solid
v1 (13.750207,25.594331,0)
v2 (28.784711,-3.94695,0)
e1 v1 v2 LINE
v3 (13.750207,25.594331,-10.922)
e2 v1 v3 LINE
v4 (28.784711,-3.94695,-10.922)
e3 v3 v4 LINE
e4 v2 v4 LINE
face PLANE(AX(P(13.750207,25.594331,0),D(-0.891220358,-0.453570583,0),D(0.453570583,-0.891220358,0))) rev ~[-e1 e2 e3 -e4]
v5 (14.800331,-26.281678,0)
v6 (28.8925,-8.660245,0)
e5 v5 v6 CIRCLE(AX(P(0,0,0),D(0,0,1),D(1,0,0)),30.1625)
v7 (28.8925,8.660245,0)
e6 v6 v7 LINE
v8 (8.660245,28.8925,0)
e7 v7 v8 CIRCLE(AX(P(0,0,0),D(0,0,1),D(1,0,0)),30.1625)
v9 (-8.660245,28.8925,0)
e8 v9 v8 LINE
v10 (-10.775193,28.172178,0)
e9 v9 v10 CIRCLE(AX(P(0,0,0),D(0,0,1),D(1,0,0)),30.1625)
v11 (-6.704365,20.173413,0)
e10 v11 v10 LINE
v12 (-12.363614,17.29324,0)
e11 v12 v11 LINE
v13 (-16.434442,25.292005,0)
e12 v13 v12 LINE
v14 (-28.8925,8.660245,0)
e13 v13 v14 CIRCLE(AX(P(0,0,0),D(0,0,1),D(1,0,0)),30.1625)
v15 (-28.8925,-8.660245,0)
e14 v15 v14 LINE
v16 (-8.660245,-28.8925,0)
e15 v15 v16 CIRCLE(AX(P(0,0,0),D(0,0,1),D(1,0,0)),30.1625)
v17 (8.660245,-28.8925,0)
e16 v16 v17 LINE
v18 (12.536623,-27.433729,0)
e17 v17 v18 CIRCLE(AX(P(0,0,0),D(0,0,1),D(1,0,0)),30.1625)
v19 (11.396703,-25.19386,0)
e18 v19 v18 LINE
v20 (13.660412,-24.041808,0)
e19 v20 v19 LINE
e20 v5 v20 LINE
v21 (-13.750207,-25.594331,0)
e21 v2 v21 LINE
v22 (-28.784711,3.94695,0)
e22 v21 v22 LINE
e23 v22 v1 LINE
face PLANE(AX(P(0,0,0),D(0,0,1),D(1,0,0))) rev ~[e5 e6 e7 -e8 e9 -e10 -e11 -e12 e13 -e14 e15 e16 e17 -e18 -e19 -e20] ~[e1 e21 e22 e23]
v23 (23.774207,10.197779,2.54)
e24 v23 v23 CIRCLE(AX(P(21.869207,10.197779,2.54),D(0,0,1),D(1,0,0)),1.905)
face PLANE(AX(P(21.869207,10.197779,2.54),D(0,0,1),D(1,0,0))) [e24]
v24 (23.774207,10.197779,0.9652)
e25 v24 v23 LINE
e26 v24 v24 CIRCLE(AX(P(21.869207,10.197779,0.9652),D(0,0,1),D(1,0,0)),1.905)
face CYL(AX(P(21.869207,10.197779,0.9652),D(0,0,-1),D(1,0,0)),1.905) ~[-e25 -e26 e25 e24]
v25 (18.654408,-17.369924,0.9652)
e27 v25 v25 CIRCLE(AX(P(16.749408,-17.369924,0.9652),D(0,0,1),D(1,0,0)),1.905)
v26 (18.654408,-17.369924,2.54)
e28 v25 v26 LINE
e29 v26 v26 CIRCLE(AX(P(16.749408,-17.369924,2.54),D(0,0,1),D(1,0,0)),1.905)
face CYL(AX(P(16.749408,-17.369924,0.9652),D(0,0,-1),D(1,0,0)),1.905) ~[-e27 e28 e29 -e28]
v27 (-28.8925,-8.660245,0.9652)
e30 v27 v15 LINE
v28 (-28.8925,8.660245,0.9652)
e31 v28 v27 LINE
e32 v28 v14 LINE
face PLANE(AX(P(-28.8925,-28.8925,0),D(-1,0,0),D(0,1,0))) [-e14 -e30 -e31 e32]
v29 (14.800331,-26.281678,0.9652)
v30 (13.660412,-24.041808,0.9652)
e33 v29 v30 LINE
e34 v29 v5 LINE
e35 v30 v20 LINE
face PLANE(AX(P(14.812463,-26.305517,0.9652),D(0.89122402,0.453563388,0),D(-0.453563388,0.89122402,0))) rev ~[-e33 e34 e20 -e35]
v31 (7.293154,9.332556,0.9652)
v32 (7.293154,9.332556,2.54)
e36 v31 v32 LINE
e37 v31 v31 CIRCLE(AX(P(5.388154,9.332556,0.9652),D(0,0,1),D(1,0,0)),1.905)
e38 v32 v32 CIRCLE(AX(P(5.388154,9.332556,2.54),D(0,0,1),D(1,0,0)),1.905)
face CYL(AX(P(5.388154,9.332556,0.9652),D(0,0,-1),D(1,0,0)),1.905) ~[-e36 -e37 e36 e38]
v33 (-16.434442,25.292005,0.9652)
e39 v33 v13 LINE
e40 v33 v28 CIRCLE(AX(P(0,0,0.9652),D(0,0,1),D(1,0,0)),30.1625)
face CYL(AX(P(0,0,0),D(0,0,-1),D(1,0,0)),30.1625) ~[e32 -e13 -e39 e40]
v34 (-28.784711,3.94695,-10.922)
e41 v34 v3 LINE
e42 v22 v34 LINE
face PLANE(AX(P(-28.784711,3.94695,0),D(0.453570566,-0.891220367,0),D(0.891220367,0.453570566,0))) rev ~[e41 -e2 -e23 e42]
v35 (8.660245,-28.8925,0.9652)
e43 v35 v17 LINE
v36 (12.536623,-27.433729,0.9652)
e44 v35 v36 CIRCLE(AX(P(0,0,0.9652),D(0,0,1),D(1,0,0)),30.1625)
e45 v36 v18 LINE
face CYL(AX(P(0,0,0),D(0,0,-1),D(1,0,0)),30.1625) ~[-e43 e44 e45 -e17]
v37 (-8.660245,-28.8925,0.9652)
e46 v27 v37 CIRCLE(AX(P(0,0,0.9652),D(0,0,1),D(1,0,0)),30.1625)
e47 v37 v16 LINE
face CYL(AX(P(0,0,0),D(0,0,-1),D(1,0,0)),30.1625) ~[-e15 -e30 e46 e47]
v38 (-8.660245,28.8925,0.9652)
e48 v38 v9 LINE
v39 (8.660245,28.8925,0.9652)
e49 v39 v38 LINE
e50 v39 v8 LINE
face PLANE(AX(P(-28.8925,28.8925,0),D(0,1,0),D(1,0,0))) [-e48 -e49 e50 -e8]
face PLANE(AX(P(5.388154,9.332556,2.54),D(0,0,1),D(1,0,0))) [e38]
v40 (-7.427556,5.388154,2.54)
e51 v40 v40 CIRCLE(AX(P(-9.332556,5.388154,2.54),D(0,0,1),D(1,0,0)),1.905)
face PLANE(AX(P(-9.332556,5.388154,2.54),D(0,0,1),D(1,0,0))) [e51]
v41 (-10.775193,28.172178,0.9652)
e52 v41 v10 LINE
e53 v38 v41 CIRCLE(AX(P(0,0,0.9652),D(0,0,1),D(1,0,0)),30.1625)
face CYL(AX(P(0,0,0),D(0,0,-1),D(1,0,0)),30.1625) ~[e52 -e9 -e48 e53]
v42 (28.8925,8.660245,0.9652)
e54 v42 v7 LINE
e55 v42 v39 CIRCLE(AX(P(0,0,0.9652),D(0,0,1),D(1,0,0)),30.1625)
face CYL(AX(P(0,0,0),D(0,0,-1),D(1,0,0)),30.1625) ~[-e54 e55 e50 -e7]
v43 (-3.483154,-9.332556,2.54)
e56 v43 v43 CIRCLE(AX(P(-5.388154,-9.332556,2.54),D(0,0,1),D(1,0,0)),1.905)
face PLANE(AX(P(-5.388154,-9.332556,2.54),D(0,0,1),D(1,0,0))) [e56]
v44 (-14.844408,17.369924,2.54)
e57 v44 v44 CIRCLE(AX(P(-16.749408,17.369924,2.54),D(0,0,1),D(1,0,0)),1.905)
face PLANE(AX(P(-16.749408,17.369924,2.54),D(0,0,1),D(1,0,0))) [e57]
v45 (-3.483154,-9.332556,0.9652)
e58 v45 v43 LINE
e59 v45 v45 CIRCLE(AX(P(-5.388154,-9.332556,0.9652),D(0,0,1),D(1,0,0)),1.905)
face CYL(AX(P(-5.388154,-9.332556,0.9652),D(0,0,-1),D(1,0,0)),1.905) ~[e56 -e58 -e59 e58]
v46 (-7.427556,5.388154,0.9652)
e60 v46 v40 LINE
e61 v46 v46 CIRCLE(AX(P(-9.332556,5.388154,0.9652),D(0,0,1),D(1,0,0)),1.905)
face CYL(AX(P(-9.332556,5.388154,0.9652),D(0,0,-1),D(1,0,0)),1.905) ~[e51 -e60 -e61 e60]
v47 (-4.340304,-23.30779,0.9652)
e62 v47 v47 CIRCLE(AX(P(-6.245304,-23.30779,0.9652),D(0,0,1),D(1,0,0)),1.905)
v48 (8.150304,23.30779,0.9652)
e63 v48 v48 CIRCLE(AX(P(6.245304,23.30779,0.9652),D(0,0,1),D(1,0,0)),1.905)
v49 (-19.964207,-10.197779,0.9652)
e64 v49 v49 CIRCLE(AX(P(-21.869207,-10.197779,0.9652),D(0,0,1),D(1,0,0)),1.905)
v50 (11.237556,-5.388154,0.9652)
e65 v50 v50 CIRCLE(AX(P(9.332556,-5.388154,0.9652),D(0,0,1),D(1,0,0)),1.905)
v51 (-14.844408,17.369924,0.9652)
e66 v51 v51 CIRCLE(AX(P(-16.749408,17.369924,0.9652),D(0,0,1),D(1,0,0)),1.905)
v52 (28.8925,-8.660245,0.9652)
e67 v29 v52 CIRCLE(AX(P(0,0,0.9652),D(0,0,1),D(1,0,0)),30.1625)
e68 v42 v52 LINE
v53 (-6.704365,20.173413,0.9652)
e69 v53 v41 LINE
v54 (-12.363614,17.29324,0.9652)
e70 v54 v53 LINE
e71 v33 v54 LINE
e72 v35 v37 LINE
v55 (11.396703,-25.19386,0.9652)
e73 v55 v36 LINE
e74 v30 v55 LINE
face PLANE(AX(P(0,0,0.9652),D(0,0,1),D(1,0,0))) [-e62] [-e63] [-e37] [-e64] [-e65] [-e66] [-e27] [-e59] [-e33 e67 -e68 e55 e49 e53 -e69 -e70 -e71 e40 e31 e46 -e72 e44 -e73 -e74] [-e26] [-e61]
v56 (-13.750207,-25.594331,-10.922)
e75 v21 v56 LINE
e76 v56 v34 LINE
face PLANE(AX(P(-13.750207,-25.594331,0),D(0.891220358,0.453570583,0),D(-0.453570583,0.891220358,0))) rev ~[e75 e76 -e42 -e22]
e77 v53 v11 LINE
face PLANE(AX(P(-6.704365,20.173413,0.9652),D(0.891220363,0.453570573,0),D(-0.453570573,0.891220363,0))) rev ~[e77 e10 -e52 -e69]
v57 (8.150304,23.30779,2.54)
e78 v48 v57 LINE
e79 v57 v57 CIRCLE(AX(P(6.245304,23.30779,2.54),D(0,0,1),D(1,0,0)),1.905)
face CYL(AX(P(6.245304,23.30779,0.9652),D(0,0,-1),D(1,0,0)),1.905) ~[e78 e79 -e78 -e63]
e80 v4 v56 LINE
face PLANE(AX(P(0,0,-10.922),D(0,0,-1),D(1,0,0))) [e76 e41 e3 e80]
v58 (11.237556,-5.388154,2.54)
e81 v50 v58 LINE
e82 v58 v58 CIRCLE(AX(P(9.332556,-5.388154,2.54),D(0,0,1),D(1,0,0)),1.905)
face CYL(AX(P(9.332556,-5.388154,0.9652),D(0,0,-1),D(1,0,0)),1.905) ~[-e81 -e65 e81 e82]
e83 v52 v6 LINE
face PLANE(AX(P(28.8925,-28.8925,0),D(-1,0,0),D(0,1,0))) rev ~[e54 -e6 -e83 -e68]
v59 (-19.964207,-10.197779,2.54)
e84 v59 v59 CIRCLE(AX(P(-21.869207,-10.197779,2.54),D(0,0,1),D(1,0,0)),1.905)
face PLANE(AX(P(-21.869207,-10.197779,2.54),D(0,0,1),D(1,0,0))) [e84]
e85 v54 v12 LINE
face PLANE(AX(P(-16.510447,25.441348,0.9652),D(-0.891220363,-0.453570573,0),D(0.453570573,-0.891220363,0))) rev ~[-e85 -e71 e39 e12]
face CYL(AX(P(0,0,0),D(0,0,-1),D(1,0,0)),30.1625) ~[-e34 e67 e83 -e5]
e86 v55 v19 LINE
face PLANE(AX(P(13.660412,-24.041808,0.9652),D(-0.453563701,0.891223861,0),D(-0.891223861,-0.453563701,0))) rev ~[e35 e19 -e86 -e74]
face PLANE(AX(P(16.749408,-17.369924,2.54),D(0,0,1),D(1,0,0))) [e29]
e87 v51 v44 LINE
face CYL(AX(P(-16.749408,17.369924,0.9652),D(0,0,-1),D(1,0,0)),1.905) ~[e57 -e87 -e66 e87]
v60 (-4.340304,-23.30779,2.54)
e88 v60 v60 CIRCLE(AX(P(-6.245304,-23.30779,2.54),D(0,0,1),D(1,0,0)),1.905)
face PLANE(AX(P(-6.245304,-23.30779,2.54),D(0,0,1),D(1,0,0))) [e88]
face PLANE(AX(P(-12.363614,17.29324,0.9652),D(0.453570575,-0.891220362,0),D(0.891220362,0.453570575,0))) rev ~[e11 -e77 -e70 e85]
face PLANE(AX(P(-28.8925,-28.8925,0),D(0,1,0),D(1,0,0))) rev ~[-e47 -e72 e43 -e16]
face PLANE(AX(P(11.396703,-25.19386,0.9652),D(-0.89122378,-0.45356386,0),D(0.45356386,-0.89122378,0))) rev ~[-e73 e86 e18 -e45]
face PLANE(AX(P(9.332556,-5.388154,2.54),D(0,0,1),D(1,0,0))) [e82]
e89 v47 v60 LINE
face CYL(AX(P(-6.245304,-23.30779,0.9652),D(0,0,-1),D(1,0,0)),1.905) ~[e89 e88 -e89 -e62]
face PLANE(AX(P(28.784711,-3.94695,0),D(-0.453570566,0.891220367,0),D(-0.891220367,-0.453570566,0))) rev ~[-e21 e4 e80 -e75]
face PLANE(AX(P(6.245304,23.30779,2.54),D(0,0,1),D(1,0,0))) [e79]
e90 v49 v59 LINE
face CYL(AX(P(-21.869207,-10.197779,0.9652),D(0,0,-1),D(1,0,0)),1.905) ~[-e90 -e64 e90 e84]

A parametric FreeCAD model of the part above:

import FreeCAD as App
import Part
import Sketcher

V = App.Vector
Q = App.Units.Quantity

doc = App.newDocument("Part")
body = doc.addObject("PartDesign::Body", "Body")

# Sketch on XY plane
sketch1 = body.newObject("Sketcher::SketchObject", "Sketch")
sketch1.AttachmentSupport = (doc.getObject("XY_Plane"), [""])
sketch1.MapMode = "FlatFace"
sketch1.addGeometry(Part.Circle(V(0, 0, 0), V(0, 0, 1), 30), False)
sketch1.addConstraint(Sketcher.Constraint("Coincident", 0, 3, -1, 1))
sketch1.addConstraint(Sketcher.Constraint("Diameter", 0, Q("2.375 in")))
pad1 = body.newObject("PartDesign::Pad", "Pad")
pad1.Profile = sketch1
pad1.Length = Q("0.038 in")

# Sketch on XY plane
sketch2 = body.newObject("Sketcher::SketchObject", "Sketch001")
sketch2.AttachmentSupport = (doc.getObject("XY_Plane"), [""])
sketch2.MapMode = "FlatFace"
sketch2.addGeometry(Part.LineSegment(V(-38, 38, 0), V(-38, -38, 0)), False)
sketch2.addGeometry(Part.LineSegment(V(-38, -38, 0), V(38, -38, 0)), False)
sketch2.addGeometry(Part.LineSegment(V(38, -38, 0), V(38, 38, 0)), False)
sketch2.addGeometry(Part.LineSegment(V(38, 38, 0), V(-38, 38, 0)), False)
sketch2.addGeometry(Part.LineSegment(V(29, -29, 0), V(-29, -29, 0)), False)
sketch2.addGeometry(Part.LineSegment(V(-29, -29, 0), V(-29, 29, 0)), False)
sketch2.addGeometry(Part.LineSegment(V(-29, 29, 0), V(29, 29, 0)), False)
sketch2.addGeometry(Part.LineSegment(V(29, 29, 0), V(29, -29, 0)), False)
sketch2.addConstraint(Sketcher.Constraint("Coincident", 0, 2, 1, 1))
sketch2.addConstraint(Sketcher.Constraint("Coincident", 1, 2, 2, 1))
sketch2.addConstraint(Sketcher.Constraint("Coincident", 2, 2, 3, 1))
sketch2.addConstraint(Sketcher.Constraint("Coincident", 3, 2, 0, 1))
sketch2.addConstraint(Sketcher.Constraint("Coincident", 4, 2, 5, 1))
sketch2.addConstraint(Sketcher.Constraint("Coincident", 5, 2, 6, 1))
sketch2.addConstraint(Sketcher.Constraint("Coincident", 6, 2, 7, 1))
sketch2.addConstraint(Sketcher.Constraint("Coincident", 7, 2, 4, 1))
sketch2.addConstraint(Sketcher.Constraint("Vertical", 0))
sketch2.addConstraint(Sketcher.Constraint("Horizontal", 1))
sketch2.addConstraint(Sketcher.Constraint("Vertical", 2))
sketch2.addConstraint(Sketcher.Constraint("Horizontal", 3))
sketch2.addConstraint(Sketcher.Constraint("Horizontal", 4))
sketch2.addConstraint(Sketcher.Constraint("Vertical", 5))
sketch2.addConstraint(Sketcher.Constraint("Horizontal", 6))
sketch2.addConstraint(Sketcher.Constraint("Vertical", 7))
sketch2.addConstraint(Sketcher.Constraint("Symmetric", 0, 2, 2, 2, -1, 1))
sketch2.addConstraint(Sketcher.Constraint("Symmetric", 4, 2, 6, 2, -1, 1))
sketch2.addConstraint(Sketcher.Constraint("Equal", 3, 0))
sketch2.addConstraint(Sketcher.Constraint("Equal", 6, 5))
sketch2.addConstraint(Sketcher.Constraint("DistanceX", 1, 1, 1, 2, Q("3 in")))
sketch2.addConstraint(Sketcher.Constraint("DistanceX", 4, 2, 4, 1, Q("2.275 in")))
pocket1 = body.newObject("PartDesign::Pocket", "Pocket")
pocket1.Profile = sketch2
pocket1.Type = "ThroughAll"
pocket1.Reversed = True

# Sketch on XY plane
sketch3 = body.newObject("Sketcher::SketchObject", "Sketch002")
sketch3.AttachmentSupport = (doc.getObject("XY_Plane"), [""])
sketch3.MapMode = "FlatFace"
sketch3.AttachmentOffset = App.Placement(V(0, 0, 0.038 * 25.4), App.Rotation())
sketch3.addGeometry(Part.Circle(V(-9.3, 5.4, 0), V(0, 0, 1), 1.9), False)
sketch3.addGeometry(Part.Circle(V(5.4, 9.3, 0), V(0, 0, 1), 1.9), False)
sketch3.addGeometry(Part.Circle(V(9.3, -5.4, 0), V(0, 0, 1), 1.9), False)
sketch3.addGeometry(Part.Circle(V(-5.4, -9.3, 0), V(0, 0, 1), 1.9), False)
sketch3.addConstraint(Sketcher.Constraint("Equal", 0, 1))
sketch3.addConstraint(Sketcher.Constraint("Equal", 1, 2))
sketch3.addConstraint(Sketcher.Constraint("Equal", 2, 3))
sketch3.addConstraint(Sketcher.Constraint("Symmetric", 0, 3, 2, 3, -1, 1))
sketch3.addConstraint(Sketcher.Constraint("Symmetric", 1, 3, 3, 3, -1, 1))
sketch3.addConstraint(Sketcher.Constraint("Diameter", 0, Q("0.15 in")))
sketch3.addConstraint(Sketcher.Constraint("DistanceX", 0, 3, 1, 3, 14.72071))
sketch3.addConstraint(Sketcher.Constraint("DistanceY", 2, 3, 1, 3, 14.72071))
sketch3.addConstraint(Sketcher.Constraint("DistanceX", 0, 3, -1, 1, 9.332556))
sketch3.addConstraint(Sketcher.Constraint("DistanceY", -1, 1, 0, 3, 5.388154))
pad2 = body.newObject("PartDesign::Pad", "Pad001")
pad2.Profile = sketch3
pad2.Length = Q("0.062 in")

# Sketch on XY plane
sketch4 = body.newObject("Sketcher::SketchObject", "Sketch003")
sketch4.AttachmentSupport = (doc.getObject("XY_Plane"), [""])
sketch4.MapMode = "FlatFace"
sketch4.AttachmentOffset = App.Placement(V(0, 0, 0.038 * 25.4), App.Rotation())
sketch4.addGeometry(Part.Circle(V(6.2, 23.3, 0), V(0, 0, 1), 1.9), False)
sketch4.addGeometry(Part.Circle(V(-16.7, 17.4, 0), V(0, 0, 1), 1.9), False)
sketch4.addGeometry(Part.Circle(V(-6.2, -23.3, 0), V(0, 0, 1), 1.9), False)
sketch4.addGeometry(Part.Circle(V(16.7, -17.4, 0), V(0, 0, 1), 1.9), False)
sketch4.addGeometry(Part.Circle(V(21.9, 10.2, 0), V(0, 0, 1), 1.9), False)
sketch4.addGeometry(Part.Circle(V(-21.9, -10.2, 0), V(0, 0, 1), 1.9), False)
sketch4.addConstraint(Sketcher.Constraint("Equal", 0, 1))
sketch4.addConstraint(Sketcher.Constraint("Equal", 1, 2))
sketch4.addConstraint(Sketcher.Constraint("Equal", 2, 3))
sketch4.addConstraint(Sketcher.Constraint("Equal", 3, 4))
sketch4.addConstraint(Sketcher.Constraint("Equal", 4, 5))
sketch4.addConstraint(Sketcher.Constraint("Symmetric", 0, 3, 2, 3, -1, 1))
sketch4.addConstraint(Sketcher.Constraint("Symmetric", 1, 3, 3, 3, -1, 1))
sketch4.addConstraint(Sketcher.Constraint("Symmetric", 4, 3, 5, 3, -1, 1))
sketch4.addConstraint(Sketcher.Constraint("Diameter", 0, Q("0.15 in")))
sketch4.addConstraint(Sketcher.Constraint("DistanceX", 3, 3, 4, 3, 5.119799))
sketch4.addConstraint(Sketcher.Constraint("DistanceY", -1, 1, 0, 3, 23.30779))
sketch4.addConstraint(Sketcher.Constraint("DistanceY", -1, 1, 4, 3, 10.197779))
sketch4.addConstraint(Sketcher.Constraint("DistanceX", 1, 3, 0, 3, 22.994712))
sketch4.addConstraint(Sketcher.Constraint("DistanceY", 3, 3, 1, 3, 34.739848))
sketch4.addConstraint(Sketcher.Constraint("DistanceX", -1, 1, 0, 3, 6.245304))
pad3 = body.newObject("PartDesign::Pad", "Pad002")
pad3.Profile = sketch4
pad3.Length = Q("0.062 in")

# Sketch on XY plane
sketch5 = body.newObject("Sketcher::SketchObject", "Sketch004")
sketch5.AttachmentSupport = (doc.getObject("XY_Plane"), [""])
sketch5.MapMode = "FlatFace"
sketch5.AttachmentOffset = App.Placement(V(0, 0, 0.038 * 25.4), App.Rotation())
sketch5.addGeometry(Part.LineSegment(V(11.4, -25.2, 0), V(12.5, -27.5, 0)), False)
sketch5.addGeometry(Part.LineSegment(V(12.5, -27.5, 0), V(14.8, -26.3, 0)), False)
sketch5.addGeometry(Part.LineSegment(V(14.8, -26.3, 0), V(13.7, -24, 0)), False)
sketch5.addGeometry(Part.LineSegment(V(13.7, -24, 0), V(11.4, -25.2, 0)), False)
sketch5.addConstraint(Sketcher.Constraint("Coincident", 0, 2, 1, 1))
sketch5.addConstraint(Sketcher.Constraint("Coincident", 1, 2, 2, 1))
sketch5.addConstraint(Sketcher.Constraint("Coincident", 2, 2, 3, 1))
sketch5.addConstraint(Sketcher.Constraint("Coincident", 3, 2, 0, 1))
sketch5.addConstraint(Sketcher.Constraint("Perpendicular", 0, 1))
sketch5.addConstraint(Sketcher.Constraint("Perpendicular", 1, 2))
sketch5.addConstraint(Sketcher.Constraint("Perpendicular", 2, 3))
sketch5.addConstraint(Sketcher.Constraint("Equal", 0, 1))
sketch5.addConstraint(Sketcher.Constraint("Distance", 0, Q("0.1 in")))
sketch5.addConstraint(Sketcher.Constraint("DistanceY", 3, 2, -1, 1, 25.19386))
sketch5.addConstraint(Sketcher.Constraint("DistanceY", 0, 2, 1, 2, 1.152051))
sketch5.addConstraint(Sketcher.Constraint("DistanceX", -1, 1, 0, 2, 12.548755))
pocket2 = body.newObject("PartDesign::Pocket", "Pocket001")
pocket2.Profile = sketch5
pocket2.Length = Q("1 in")

# Sketch on XY plane
sketch6 = body.newObject("Sketcher::SketchObject", "Sketch005")
sketch6.AttachmentSupport = (doc.getObject("XY_Plane"), [""])
sketch6.MapMode = "FlatFace"
sketch6.AttachmentOffset = App.Placement(V(0, 0, 0.038 * 25.4), App.Rotation())
sketch6.addGeometry(Part.LineSegment(V(-11, 28, 0), V(-17, 25, 0)), False)
sketch6.addGeometry(Part.LineSegment(V(-17, 25, 0), V(-12, 17, 0)), False)
sketch6.addGeometry(Part.LineSegment(V(-12, 17, 0), V(-7, 20, 0)), False)
sketch6.addGeometry(Part.LineSegment(V(-7, 20, 0), V(-11, 28, 0)), False)
sketch6.addConstraint(Sketcher.Constraint("Coincident", 0, 2, 1, 1))
sketch6.addConstraint(Sketcher.Constraint("Coincident", 1, 2, 2, 1))
sketch6.addConstraint(Sketcher.Constraint("Coincident", 2, 2, 3, 1))
sketch6.addConstraint(Sketcher.Constraint("Coincident", 3, 2, 0, 1))
sketch6.addConstraint(Sketcher.Constraint("Perpendicular", 0, 1))
sketch6.addConstraint(Sketcher.Constraint("Perpendicular", 1, 2))
sketch6.addConstraint(Sketcher.Constraint("Perpendicular", 2, 3))
sketch6.addConstraint(Sketcher.Constraint("Distance", 0, Q("0.25 in")))
sketch6.addConstraint(Sketcher.Constraint("Distance", 1, 9.142641))
sketch6.addConstraint(Sketcher.Constraint("DistanceY", -1, 1, 0, 2, 25.441348))
sketch6.addConstraint(Sketcher.Constraint("DistanceY", -1, 1, 1, 2, 17.29324))
sketch6.addConstraint(Sketcher.Constraint("DistanceX", 0, 2, -1, 1, 16.510447))
pocket3 = body.newObject("PartDesign::Pocket", "Pocket002")
pocket3.Profile = sketch6
pocket3.Length = Q("1 in")

# Sketch on XY plane
sketch7 = body.newObject("Sketcher::SketchObject", "Sketch006")
sketch7.AttachmentSupport = (doc.getObject("XY_Plane"), [""])
sketch7.MapMode = "FlatFace"
sketch7.addGeometry(Part.LineSegment(V(-29, 4, 0), V(14, 26, 0)), False)
sketch7.addGeometry(Part.LineSegment(V(14, 26, 0), V(29, -4, 0)), False)
sketch7.addGeometry(Part.LineSegment(V(29, -4, 0), V(-14, -26, 0)), False)
sketch7.addGeometry(Part.LineSegment(V(-14, -26, 0), V(-29, 4, 0)), False)
sketch7.addConstraint(Sketcher.Constraint("Coincident", 0, 2, 1, 1))
sketch7.addConstraint(Sketcher.Constraint("Coincident", 1, 2, 2, 1))
sketch7.addConstraint(Sketcher.Constraint("Coincident", 2, 2, 3, 1))
sketch7.addConstraint(Sketcher.Constraint("Coincident", 3, 2, 0, 1))
sketch7.addConstraint(Sketcher.Constraint("Symmetric", 0, 2, 2, 2, -1, 1))
sketch7.addConstraint(Sketcher.Constraint("Symmetric", 1, 2, 3, 2, -1, 1))
sketch7.addConstraint(Sketcher.Constraint("Perpendicular", 0, 1))
sketch7.addConstraint(Sketcher.Constraint("Distance", 0, Q("1.879 in")))
sketch7.addConstraint(Sketcher.Constraint("Distance", 1, Q("1.305 in")))
sketch7.addConstraint(Sketcher.Constraint("DistanceY", 1, 2, 3, 2, 7.8939))
pad4 = body.newObject("PartDesign::Pad", "Pad003")
pad4.Profile = sketch7
pad4.Length = Q("0.43 in")
pad4.Reversed = True

doc.recompute()
